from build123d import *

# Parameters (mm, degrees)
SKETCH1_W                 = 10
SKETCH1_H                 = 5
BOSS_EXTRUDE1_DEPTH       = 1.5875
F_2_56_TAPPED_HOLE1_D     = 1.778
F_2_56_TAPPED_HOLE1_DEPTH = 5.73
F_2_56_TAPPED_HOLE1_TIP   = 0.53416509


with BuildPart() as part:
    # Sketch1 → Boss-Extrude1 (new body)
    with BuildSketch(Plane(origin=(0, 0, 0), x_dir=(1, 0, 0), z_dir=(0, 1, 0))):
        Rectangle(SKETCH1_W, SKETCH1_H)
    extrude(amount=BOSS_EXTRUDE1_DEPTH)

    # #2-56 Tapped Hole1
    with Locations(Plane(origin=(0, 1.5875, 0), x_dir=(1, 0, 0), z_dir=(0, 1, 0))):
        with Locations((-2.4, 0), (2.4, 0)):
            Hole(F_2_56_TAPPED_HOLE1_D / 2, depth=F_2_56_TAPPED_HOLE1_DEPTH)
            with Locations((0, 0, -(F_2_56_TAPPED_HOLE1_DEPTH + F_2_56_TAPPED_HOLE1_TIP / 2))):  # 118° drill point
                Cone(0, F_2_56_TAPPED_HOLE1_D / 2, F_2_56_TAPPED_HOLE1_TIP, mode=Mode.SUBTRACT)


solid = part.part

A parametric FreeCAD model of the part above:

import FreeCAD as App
import Part
import Sketcher

V = App.Vector


def add_polygon(sketch, points):
    """Adds a closed chain of lines whose ends are joined by coincident constraints."""
    first, n = sketch.GeometryCount, len(points)
    for a, b in zip(points, points[1:] + points[:1]):
        sketch.addGeometry(Part.LineSegment(App.Vector(*a, 0), App.Vector(*b, 0)), False)
    for i in range(n):
        sketch.addConstraint(Sketcher.Constraint("Coincident", first + i, 2, first + (i + 1) % n, 1))

doc = App.newDocument("Part")
body = doc.addObject("PartDesign::Body", "Body")

sketch1 = body.newObject("Sketcher::SketchObject", "Sketch")
sketch1.AttachmentSupport = (doc.getObject("XZ_Plane"), [""])
sketch1.MapMode = "FlatFace"
add_polygon(sketch1, [(-5, -2), (-5, 2), (5, 2), (5, -2)])
sketch1.addConstraint([
    Sketcher.Constraint("Vertical", 0),
    Sketcher.Constraint("Horizontal", 1),
    Sketcher.Constraint("Vertical", 2),
    Sketcher.Constraint("Horizontal", 3),
    Sketcher.Constraint("Symmetric", 0, 2, 2, 2, -1, 1),
    Sketcher.Constraint("DistanceX", 1, 1, 1, 2, 10.0),
    Sketcher.Constraint("DistanceY", 0, 1, 0, 2, 5.0),
])
pad1 = body.newObject("PartDesign::Pad", "Pad")
pad1.Profile = sketch1
pad1.Length = 1.5875
pad1.Reversed = True

sketch2 = body.newObject("Sketcher::SketchObject", "Sketch001")
sketch2.AttachmentSupport = (doc.getObject("XZ_Plane"), [""])
sketch2.MapMode = "FlatFace"
sketch2.AttachmentOffset = App.Placement(V(0, 0, -1.5875), App.Rotation())
sketch2.addGeometry([
    Part.Circle(V(-2.4, 0, 0), V(0, 0, 1), 0.9),
    Part.Circle(V(2.4, 0, 0), V(0, 0, 1), 0.9),
], False)
sketch2.addConstraint([
    Sketcher.Constraint("Equal", 0, 1),
    Sketcher.Constraint("Symmetric", 0, 3, 1, 3, -1, 1),
    Sketcher.Constraint("PointOnObject", 0, 3, -1),
    Sketcher.Constraint("Diameter", 0, 1.778),
    Sketcher.Constraint("DistanceX", 0, 3, -1, 1, 2.4),
])
doc.recompute()
hole = body.newObject("PartDesign::Hole", "Hole")
hole.Profile = sketch2
hole.ThreadType = "None"
hole.Diameter = 1.778
hole.DepthType = "Dimension"
hole.Depth = 5.73
hole.DrillPoint = "Angled"
hole.DrillPointAngle = 118
hole.Reversed = True

doc.recompute()
